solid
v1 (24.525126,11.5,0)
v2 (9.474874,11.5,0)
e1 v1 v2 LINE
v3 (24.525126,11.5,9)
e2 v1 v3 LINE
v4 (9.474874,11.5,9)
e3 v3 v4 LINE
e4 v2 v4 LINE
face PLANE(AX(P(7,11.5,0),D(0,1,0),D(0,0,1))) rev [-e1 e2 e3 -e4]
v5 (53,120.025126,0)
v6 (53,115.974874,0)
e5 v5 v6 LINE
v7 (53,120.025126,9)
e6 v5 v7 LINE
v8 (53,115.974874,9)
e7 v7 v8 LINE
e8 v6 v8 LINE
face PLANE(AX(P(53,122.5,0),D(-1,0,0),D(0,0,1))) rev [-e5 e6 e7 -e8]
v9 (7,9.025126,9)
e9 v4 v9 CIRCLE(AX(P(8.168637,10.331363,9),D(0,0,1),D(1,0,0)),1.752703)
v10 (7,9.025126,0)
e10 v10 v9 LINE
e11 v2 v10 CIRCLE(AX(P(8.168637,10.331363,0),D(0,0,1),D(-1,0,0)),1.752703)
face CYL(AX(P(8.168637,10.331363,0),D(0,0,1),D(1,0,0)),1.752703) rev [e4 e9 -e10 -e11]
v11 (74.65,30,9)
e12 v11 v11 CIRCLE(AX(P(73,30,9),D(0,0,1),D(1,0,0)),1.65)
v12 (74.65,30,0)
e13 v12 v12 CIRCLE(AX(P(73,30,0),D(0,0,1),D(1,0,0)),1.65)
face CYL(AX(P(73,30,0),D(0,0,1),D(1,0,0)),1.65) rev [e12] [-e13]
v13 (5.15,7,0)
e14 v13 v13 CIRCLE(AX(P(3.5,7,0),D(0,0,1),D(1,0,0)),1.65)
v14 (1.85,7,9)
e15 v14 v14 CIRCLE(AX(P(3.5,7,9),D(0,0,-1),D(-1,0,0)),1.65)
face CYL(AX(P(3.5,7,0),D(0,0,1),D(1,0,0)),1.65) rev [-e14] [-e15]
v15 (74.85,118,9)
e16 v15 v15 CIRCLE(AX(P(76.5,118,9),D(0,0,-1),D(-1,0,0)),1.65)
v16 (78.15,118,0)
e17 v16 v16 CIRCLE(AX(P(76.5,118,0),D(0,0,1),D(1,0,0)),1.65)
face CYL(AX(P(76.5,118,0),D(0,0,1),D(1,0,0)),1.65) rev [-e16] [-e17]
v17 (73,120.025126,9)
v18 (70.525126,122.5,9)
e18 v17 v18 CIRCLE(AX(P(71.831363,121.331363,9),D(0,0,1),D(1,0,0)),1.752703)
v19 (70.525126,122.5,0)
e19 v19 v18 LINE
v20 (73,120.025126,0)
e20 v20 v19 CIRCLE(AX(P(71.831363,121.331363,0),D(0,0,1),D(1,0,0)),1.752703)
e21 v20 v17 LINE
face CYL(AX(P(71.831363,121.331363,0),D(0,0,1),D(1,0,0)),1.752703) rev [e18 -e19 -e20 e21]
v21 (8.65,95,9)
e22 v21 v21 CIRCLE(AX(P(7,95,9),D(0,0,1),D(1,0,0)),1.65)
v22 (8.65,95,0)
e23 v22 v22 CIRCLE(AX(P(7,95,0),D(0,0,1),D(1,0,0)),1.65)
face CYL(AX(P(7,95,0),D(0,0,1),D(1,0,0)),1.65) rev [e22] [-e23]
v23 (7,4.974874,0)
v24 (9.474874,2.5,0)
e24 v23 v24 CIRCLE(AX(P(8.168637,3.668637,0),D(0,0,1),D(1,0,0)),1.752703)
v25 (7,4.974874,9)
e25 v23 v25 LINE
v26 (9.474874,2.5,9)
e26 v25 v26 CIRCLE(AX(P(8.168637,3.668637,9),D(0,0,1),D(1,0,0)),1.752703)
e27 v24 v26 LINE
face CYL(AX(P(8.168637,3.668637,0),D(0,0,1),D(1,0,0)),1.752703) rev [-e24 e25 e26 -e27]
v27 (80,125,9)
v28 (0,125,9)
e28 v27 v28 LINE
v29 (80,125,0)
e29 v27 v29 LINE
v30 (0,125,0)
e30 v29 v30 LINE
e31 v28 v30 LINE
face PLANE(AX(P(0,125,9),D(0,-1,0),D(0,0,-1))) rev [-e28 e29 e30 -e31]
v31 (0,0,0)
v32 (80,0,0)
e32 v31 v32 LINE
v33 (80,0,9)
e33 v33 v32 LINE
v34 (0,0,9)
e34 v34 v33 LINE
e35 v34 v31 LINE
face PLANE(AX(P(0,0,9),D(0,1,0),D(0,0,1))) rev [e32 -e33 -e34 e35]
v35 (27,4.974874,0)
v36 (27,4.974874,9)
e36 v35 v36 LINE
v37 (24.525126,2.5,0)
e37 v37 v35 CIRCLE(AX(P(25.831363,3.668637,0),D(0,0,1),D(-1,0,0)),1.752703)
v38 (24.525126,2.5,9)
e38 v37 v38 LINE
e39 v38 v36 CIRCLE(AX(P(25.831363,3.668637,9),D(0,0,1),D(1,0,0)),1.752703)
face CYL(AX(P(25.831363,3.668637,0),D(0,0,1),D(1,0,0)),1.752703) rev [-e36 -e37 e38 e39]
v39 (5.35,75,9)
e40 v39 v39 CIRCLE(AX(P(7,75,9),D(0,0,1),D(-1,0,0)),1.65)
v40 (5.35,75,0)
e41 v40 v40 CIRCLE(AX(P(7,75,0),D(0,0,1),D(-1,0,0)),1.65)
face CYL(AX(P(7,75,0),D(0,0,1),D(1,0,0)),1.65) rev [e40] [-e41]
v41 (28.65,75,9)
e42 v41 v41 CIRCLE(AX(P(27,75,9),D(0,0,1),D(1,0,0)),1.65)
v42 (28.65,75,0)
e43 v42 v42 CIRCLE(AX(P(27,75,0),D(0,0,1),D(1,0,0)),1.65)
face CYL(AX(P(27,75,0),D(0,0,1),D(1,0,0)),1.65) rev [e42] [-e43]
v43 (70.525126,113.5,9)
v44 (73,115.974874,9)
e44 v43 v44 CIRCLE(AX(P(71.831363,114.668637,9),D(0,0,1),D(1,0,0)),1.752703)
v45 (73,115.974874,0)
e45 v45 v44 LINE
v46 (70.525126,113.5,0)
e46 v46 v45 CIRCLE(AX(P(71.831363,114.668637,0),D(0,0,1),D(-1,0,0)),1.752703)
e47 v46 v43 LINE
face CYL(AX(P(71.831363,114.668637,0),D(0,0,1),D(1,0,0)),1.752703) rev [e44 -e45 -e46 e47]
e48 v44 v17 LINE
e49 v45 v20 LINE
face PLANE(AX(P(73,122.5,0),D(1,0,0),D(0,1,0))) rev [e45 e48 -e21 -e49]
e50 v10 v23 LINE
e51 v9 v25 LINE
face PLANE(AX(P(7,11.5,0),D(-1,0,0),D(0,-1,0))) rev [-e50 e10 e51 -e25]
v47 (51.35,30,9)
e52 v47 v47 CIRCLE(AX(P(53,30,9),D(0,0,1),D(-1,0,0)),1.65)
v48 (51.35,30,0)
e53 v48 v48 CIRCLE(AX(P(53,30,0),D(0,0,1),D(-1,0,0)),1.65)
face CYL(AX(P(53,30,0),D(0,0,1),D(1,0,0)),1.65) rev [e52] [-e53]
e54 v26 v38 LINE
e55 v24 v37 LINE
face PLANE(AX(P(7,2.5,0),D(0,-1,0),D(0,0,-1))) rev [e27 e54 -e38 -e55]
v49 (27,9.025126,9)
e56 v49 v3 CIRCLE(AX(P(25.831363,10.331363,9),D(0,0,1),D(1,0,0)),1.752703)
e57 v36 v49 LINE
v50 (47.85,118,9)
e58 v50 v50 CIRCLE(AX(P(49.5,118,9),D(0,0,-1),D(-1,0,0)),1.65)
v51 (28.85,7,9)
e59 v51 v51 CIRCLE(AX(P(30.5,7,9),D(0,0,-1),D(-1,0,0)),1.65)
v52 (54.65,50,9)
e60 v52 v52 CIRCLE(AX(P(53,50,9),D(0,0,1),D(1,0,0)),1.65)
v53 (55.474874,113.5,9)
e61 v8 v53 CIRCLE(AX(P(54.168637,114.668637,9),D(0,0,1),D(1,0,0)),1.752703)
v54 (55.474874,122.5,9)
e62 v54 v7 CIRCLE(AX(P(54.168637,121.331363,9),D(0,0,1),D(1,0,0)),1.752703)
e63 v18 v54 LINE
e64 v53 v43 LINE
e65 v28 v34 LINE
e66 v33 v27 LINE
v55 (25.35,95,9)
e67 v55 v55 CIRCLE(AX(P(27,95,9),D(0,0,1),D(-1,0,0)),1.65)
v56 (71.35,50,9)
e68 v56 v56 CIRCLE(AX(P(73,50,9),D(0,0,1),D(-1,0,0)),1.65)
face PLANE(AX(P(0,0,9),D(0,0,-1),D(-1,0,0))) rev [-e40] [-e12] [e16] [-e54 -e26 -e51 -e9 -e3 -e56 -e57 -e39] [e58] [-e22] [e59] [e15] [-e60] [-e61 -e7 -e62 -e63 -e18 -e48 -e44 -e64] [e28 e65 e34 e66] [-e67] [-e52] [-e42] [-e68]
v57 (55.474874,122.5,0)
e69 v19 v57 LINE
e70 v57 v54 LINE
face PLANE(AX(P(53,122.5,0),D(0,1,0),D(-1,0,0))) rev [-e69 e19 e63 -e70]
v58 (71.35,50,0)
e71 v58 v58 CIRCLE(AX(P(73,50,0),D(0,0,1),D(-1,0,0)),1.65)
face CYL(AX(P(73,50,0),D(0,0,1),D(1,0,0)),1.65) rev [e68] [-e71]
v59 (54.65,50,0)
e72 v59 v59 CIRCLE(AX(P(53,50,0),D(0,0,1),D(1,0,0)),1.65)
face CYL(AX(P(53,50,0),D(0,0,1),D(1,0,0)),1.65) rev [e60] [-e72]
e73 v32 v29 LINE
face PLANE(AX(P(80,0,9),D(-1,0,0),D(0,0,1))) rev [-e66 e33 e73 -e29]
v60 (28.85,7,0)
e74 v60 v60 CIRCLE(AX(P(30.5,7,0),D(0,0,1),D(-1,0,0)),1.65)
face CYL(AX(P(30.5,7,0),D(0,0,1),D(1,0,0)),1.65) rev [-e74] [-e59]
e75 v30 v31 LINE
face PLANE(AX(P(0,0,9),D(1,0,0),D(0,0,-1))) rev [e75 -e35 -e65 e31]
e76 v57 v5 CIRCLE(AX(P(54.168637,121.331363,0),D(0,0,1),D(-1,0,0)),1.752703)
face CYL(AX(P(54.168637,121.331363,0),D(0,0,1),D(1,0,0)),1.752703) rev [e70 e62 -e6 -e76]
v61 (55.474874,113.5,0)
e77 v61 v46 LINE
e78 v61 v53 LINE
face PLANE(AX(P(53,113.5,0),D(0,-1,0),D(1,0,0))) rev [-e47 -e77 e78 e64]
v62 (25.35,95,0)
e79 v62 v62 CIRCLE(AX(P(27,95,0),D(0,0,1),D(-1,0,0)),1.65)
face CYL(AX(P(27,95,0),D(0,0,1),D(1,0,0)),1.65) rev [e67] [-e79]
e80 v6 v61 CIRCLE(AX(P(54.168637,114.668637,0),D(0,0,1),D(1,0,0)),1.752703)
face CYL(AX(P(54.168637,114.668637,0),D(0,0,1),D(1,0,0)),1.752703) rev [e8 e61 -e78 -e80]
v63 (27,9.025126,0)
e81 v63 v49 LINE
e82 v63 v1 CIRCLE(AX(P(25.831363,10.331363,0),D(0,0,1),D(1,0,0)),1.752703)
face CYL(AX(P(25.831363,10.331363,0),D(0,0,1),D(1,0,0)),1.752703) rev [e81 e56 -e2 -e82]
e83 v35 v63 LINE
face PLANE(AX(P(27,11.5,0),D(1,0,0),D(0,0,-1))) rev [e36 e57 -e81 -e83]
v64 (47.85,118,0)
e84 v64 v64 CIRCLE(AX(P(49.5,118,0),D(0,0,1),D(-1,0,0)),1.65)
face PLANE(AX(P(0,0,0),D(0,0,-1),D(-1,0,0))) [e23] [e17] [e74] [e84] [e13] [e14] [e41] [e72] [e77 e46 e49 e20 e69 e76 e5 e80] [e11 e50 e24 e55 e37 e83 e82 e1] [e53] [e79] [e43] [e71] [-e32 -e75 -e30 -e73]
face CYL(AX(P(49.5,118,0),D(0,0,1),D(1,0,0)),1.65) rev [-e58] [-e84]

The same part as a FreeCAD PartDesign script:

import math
import FreeCAD as App
import Part
import Sketcher
from FreeCAD import Vector
Q = App.Units.Quantity

doc = App.newDocument("Part")
body = doc.addObject("PartDesign::Body", "Body")

# Sketch on XY plane
sketch1 = doc.addObject("Sketcher::SketchObject", "Sketch")
body.addObject(sketch1)
sketch1.AttachmentSupport = (doc.XY_Plane, [""])
sketch1.MapMode = "FlatFace"
sketch1.addGeometry(Part.LineSegment(Vector(0, 125, 0), Vector(0, 0, 0)), False)
sketch1.addGeometry(Part.LineSegment(Vector(0, 0, 0), Vector(80, 0, 0)), False)
sketch1.addGeometry(Part.LineSegment(Vector(80, 0, 0), Vector(80, 125, 0)), False)
sketch1.addGeometry(Part.LineSegment(Vector(80, 125, 0), Vector(0, 125, 0)), False)
sketch1.addConstraint(Sketcher.Constraint("Coincident", 0, 2, 1, 1))
sketch1.addConstraint(Sketcher.Constraint("Coincident", 1, 2, 2, 1))
sketch1.addConstraint(Sketcher.Constraint("Coincident", 2, 2, 3, 1))
sketch1.addConstraint(Sketcher.Constraint("Coincident", 3, 2, 0, 1))
sketch1.addConstraint(Sketcher.Constraint("Vertical", 0))
sketch1.addConstraint(Sketcher.Constraint("Horizontal", 1))
sketch1.addConstraint(Sketcher.Constraint("Vertical", 2))
sketch1.addConstraint(Sketcher.Constraint("Horizontal", 3))
sketch1.addConstraint(Sketcher.Constraint("Coincident", 0, 2, -1, 1))
sketch1.addConstraint(Sketcher.Constraint("DistanceX", 1, 1, 1, 2, Q("80 mm")))
sketch1.addConstraint(Sketcher.Constraint("DistanceY", 0, 2, 0, 1, Q("125 mm")))
pad1 = doc.addObject("PartDesign::Pad", "Pad")
body.addObject(pad1)
pad1.Profile = sketch1
pad1.Length = 9

# Sketch on XY plane
sketch2 = doc.addObject("Sketcher::SketchObject", "Sketch001")
body.addObject(sketch2)
sketch2.AttachmentSupport = (doc.XY_Plane, [""])
sketch2.MapMode = "FlatFace"
sketch2.AttachmentOffset = App.Placement(Vector(0, 0, 9), App.Rotation())
sketch2.addGeometry(Part.LineSegment(Vector(7, 11.5, 0), Vector(7, 2.5, 0)), False)
sketch2.addGeometry(Part.LineSegment(Vector(7, 2.5, 0), Vector(27, 2.5, 0)), False)
sketch2.addGeometry(Part.LineSegment(Vector(27, 2.5, 0), Vector(27, 11.5, 0)), False)
sketch2.addGeometry(Part.LineSegment(Vector(27, 11.5, 0), Vector(7, 11.5, 0)), False)
sketch2.addGeometry(Part.LineSegment(Vector(53, 122.5, 0), Vector(53, 113.5, 0)), False)
sketch2.addGeometry(Part.LineSegment(Vector(53, 113.5, 0), Vector(73, 113.5, 0)), False)
sketch2.addGeometry(Part.LineSegment(Vector(73, 113.5, 0), Vector(73, 122.5, 0)), False)
sketch2.addGeometry(Part.LineSegment(Vector(73, 122.5, 0), Vector(53, 122.5, 0)), False)
sketch2.addConstraint(Sketcher.Constraint("Coincident", 0, 2, 1, 1))
sketch2.addConstraint(Sketcher.Constraint("Coincident", 1, 2, 2, 1))
sketch2.addConstraint(Sketcher.Constraint("Coincident", 2, 2, 3, 1))
sketch2.addConstraint(Sketcher.Constraint("Coincident", 3, 2, 0, 1))
sketch2.addConstraint(Sketcher.Constraint("Coincident", 4, 2, 5, 1))
sketch2.addConstraint(Sketcher.Constraint("Coincident", 5, 2, 6, 1))
sketch2.addConstraint(Sketcher.Constraint("Coincident", 6, 2, 7, 1))
sketch2.addConstraint(Sketcher.Constraint("Coincident", 7, 2, 4, 1))
sketch2.addConstraint(Sketcher.Constraint("Vertical", 0))
sketch2.addConstraint(Sketcher.Constraint("Horizontal", 1))
sketch2.addConstraint(Sketcher.Constraint("Vertical", 2))
sketch2.addConstraint(Sketcher.Constraint("Horizontal", 3))
sketch2.addConstraint(Sketcher.Constraint("Vertical", 4))
sketch2.addConstraint(Sketcher.Constraint("Horizontal", 5))
sketch2.addConstraint(Sketcher.Constraint("Vertical", 6))
sketch2.addConstraint(Sketcher.Constraint("Horizontal", 7))
sketch2.addConstraint(Sketcher.Constraint("Equal", 3, 5))
sketch2.addConstraint(Sketcher.Constraint("Equal", 2, 4))
sketch2.addConstraint(Sketcher.Constraint("DistanceX", 1, 1, 1, 2, Q("20 mm")))
sketch2.addConstraint(Sketcher.Constraint("DistanceY", 0, 2, 0, 1, Q("9 mm")))
sketch2.addConstraint(Sketcher.Constraint("DistanceX", -1, 1, 0, 2, Q("7 mm")))
sketch2.addConstraint(Sketcher.Constraint("DistanceX", -1, 1, 4, 2, Q("53 mm")))
sketch2.addConstraint(Sketcher.Constraint("DistanceY", 2, 2, 4, 2, Q("102 mm")))
sketch2.addConstraint(Sketcher.Constraint("DistanceY", -1, 1, 0, 2, Q("2.5 mm")))
pocket1 = doc.addObject("PartDesign::Pocket", "Pocket")
body.addObject(pocket1)
pocket1.Profile = sketch2
pocket1.Length = 9

# Sketch on XY plane
sketch3 = doc.addObject("Sketcher::SketchObject", "Sketch002")
body.addObject(sketch3)
sketch3.AttachmentSupport = (doc.XY_Plane, [""])
sketch3.MapMode = "FlatFace"
sketch3.AttachmentOffset = App.Placement(Vector(0, 0, 9), App.Rotation())
sketch3.addGeometry(Part.Circle(Vector(3.5, 7, 0), Vector(0, 0, 1), 1.65), False)
sketch3.addGeometry(Part.Circle(Vector(30.5, 7, 0), Vector(0, 0, 1), 1.65), False)
sketch3.addGeometry(Part.Circle(Vector(49.5, 118, 0), Vector(0, 0, 1), 1.65), False)
sketch3.addGeometry(Part.Circle(Vector(76.5, 118, 0), Vector(0, 0, 1), 1.65), False)
sketch3.addGeometry(Part.LineSegment(Vector(7, 9.025126, 0), Vector(9.474874, 11.5, 0)), False)
sketch3.addGeometry(Part.ArcOfCircle(Part.Circle(Vector(8.168637, 10.331363, 0), Vector(0, 0, 1), 1.752703), math.radians(41.817719), math.radians(228.182281)), False)
sketch3.addGeometry(Part.LineSegment(Vector(24.525126, 11.5, 0), Vector(27, 9.025126, 0)), False)
sketch3.addGeometry(Part.ArcOfCircle(Part.Circle(Vector(25.831363, 10.331363, 0), Vector(0, 0, 1), 1.752703), math.radians(-48.182281), math.radians(138.182281)), False)
sketch3.addGeometry(Part.LineSegment(Vector(27, 4.974874, 0), Vector(24.525126, 2.5, 0)), False)
sketch3.addGeometry(Part.ArcOfCircle(Part.Circle(Vector(25.831363, 3.668637, 0), Vector(0, 0, 1), 1.752703), math.radians(-138.182281), math.radians(48.182281)), False)
sketch3.addGeometry(Part.LineSegment(Vector(9.474874, 2.5, 0), Vector(7, 4.974874, 0)), False)
sketch3.addGeometry(Part.ArcOfCircle(Part.Circle(Vector(8.168637, 3.668637, 0), Vector(0, 0, 1), 1.752703), math.radians(131.817719), math.radians(318.182281)), False)
sketch3.addGeometry(Part.LineSegment(Vector(73, 115.974874, 0), Vector(70.525126, 113.5, 0)), False)
sketch3.addGeometry(Part.ArcOfCircle(Part.Circle(Vector(71.831363, 114.668637, 0), Vector(0, 0, 1), 1.752703), math.radians(-138.182281), math.radians(48.182281)), False)
sketch3.addGeometry(Part.LineSegment(Vector(55.474874, 113.5, 0), Vector(53, 115.974874, 0)), False)
sketch3.addGeometry(Part.ArcOfCircle(Part.Circle(Vector(54.168637, 114.668637, 0), Vector(0, 0, 1), 1.752703), math.radians(131.817719), math.radians(318.182281)), False)
sketch3.addGeometry(Part.LineSegment(Vector(53, 120.025126, 0), Vector(55.474874, 122.5, 0)), False)
sketch3.addGeometry(Part.ArcOfCircle(Part.Circle(Vector(54.168637, 121.331363, 0), Vector(0, 0, 1), 1.752703), math.radians(41.817719), math.radians(228.182281)), False)
sketch3.addGeometry(Part.LineSegment(Vector(70.525126, 122.5, 0), Vector(73, 120.025126, 0)), False)
sketch3.addGeometry(Part.ArcOfCircle(Part.Circle(Vector(71.831363, 121.331363, 0), Vector(0, 0, 1), 1.752703), math.radians(-48.182281), math.radians(138.182281)), False)
sketch3.addConstraint(Sketcher.Constraint("Coincident", 4, 1, 5, 2))
sketch3.addConstraint(Sketcher.Constraint("Coincident", 5, 1, 4, 2))
sketch3.addConstraint(Sketcher.Constraint("Coincident", 6, 1, 7, 2))
sketch3.addConstraint(Sketcher.Constraint("Coincident", 7, 1, 6, 2))
sketch3.addConstraint(Sketcher.Constraint("Coincident", 8, 1, 9, 2))
sketch3.addConstraint(Sketcher.Constraint("Coincident", 9, 1, 8, 2))
sketch3.addConstraint(Sketcher.Constraint("Coincident", 10, 1, 11, 2))
sketch3.addConstraint(Sketcher.Constraint("Coincident", 11, 1, 10, 2))
sketch3.addConstraint(Sketcher.Constraint("Coincident", 12, 1, 13, 2))
sketch3.addConstraint(Sketcher.Constraint("Coincident", 13, 1, 12, 2))
sketch3.addConstraint(Sketcher.Constraint("Coincident", 14, 1, 15, 2))
sketch3.addConstraint(Sketcher.Constraint("Coincident", 15, 1, 14, 2))
sketch3.addConstraint(Sketcher.Constraint("Coincident", 16, 1, 17, 2))
sketch3.addConstraint(Sketcher.Constraint("Coincident", 17, 1, 16, 2))
sketch3.addConstraint(Sketcher.Constraint("Coincident", 18, 1, 19, 2))
sketch3.addConstraint(Sketcher.Constraint("Coincident", 19, 1, 18, 2))
sketch3.addConstraint(Sketcher.Constraint("Equal", 0, 1))
sketch3.addConstraint(Sketcher.Constraint("Equal", 1, 2))
sketch3.addConstraint(Sketcher.Constraint("Equal", 2, 3))
sketch3.addConstraint(Sketcher.Constraint("Equal", 5, 7))
sketch3.addConstraint(Sketcher.Constraint("Equal", 7, 9))
sketch3.addConstraint(Sketcher.Constraint("Equal", 9, 11))
sketch3.addConstraint(Sketcher.Constraint("Equal", 11, 13))
sketch3.addConstraint(Sketcher.Constraint("Equal", 13, 15))
sketch3.addConstraint(Sketcher.Constraint("Equal", 15, 17))
sketch3.addConstraint(Sketcher.Constraint("Equal", 17, 19))
sketch3.addConstraint(Sketcher.Constraint("Perpendicular", 4, 6))
sketch3.addConstraint(Sketcher.Constraint("Perpendicular", 6, 8))
sketch3.addConstraint(Sketcher.Constraint("Perpendicular", 8, 10))
sketch3.addConstraint(Sketcher.Constraint("Perpendicular", 10, 12))
sketch3.addConstraint(Sketcher.Constraint("Perpendicular", 12, 14))
sketch3.addConstraint(Sketcher.Constraint("Perpendicular", 14, 16))
sketch3.addConstraint(Sketcher.Constraint("Perpendicular", 16, 18))
sketch3.addConstraint(Sketcher.Constraint("Horizontal", 0, 3, 1, 3))
sketch3.addConstraint(Sketcher.Constraint("Horizontal", 2, 3, 3, 3))
sketch3.addConstraint(Sketcher.Constraint("Horizontal", 5, 3, 7, 3))
sketch3.addConstraint(Sketcher.Constraint("Horizontal", 9, 3, 11, 3))
sketch3.addConstraint(Sketcher.Constraint("Horizontal", 13, 3, 15, 3))
sketch3.addConstraint(Sketcher.Constraint("Horizontal", 17, 3, 19, 3))
sketch3.addConstraint(Sketcher.Constraint("Horizontal", 5, 1, 6, 1))
sketch3.addConstraint(Sketcher.Constraint("Horizontal", 4, 1, 7, 1))
sketch3.addConstraint(Sketcher.Constraint("Horizontal", 9, 1, 10, 1))
sketch3.addConstraint(Sketcher.Constraint("Horizontal", 13, 1, 14, 1))
sketch3.addConstraint(Sketcher.Constraint("Horizontal", 17, 1, 18, 1))
sketch3.addConstraint(Sketcher.Constraint("Vertical", 7, 3, 9, 3))
sketch3.addConstraint(Sketcher.Constraint("Vertical", 5, 3, 11, 3))
sketch3.addConstraint(Sketcher.Constraint("Vertical", 15, 3, 17, 3))
sketch3.addConstraint(Sketcher.Constraint("Vertical", 13, 3, 19, 3))
sketch3.addConstraint(Sketcher.Constraint("Vertical", 7, 1, 8, 1))
sketch3.addConstraint(Sketcher.Constraint("Vertical", 15, 1, 16, 1))
sketch3.addConstraint(Sketcher.Constraint("Equal", 10, 12))
sketch3.addConstraint(Sketcher.Constraint("Diameter", 0, Q("3.3 mm")))
sketch3.addConstraint(Sketcher.Constraint("DistanceY", -1, 1, 0, 3, Q("7 mm")))
sketch3.addConstraint(Sketcher.Constraint("DistanceY", -1, 1, 2, 3, Q("118 mm")))
sketch3.addConstraint(Sketcher.Constraint("DistanceX", -1, 1, 4, 1, Q("7 mm")))
sketch3.addConstraint(Sketcher.Constraint("DistanceX", -1, 1, 7, 1, Q("27 mm")))
sketch3.addConstraint(Sketcher.Constraint("DistanceX", -1, 1, 12, 1, Q("73 mm")))
sketch3.addConstraint(Sketcher.Constraint("DistanceX", -1, 1, 15, 1, Q("53 mm")))
sketch3.addConstraint(Sketcher.Constraint("DistanceX", 0, 3, 1, 3, Q("27 mm")))
sketch3.addConstraint(Sketcher.Constraint("DistanceX", 1, 3, 2, 3, Q("19 mm")))
sketch3.addConstraint(Sketcher.Constraint("DistanceX", 2, 3, 3, 3, Q("27 mm")))
sketch3.addConstraint(Sketcher.Constraint("DistanceY", 9, 3, 13, 3, Q("111 mm")))
sketch3.addConstraint(Sketcher.Constraint("DistanceY", 7, 3, 17, 3, Q("111 mm")))
sketch3.addConstraint(Sketcher.Constraint("DistanceY", 10, 1, 5, 1, Q("9 mm")))
sketch3.addConstraint(Sketcher.Constraint("Distance", 4, Q("3.5 mm")))
sketch3.addConstraint(Sketcher.Constraint("DistanceX", -1, 1, 0, 3, Q("3.5 mm")))
sketch3.addConstraint(Sketcher.Constraint("DistanceY", -1, 1, 5, 1, Q("11.5 mm")))
sketch3.addConstraint(Sketcher.Constraint("Radius", 5, Q("1.752703 mm")))
pocket2 = doc.addObject("PartDesign::Pocket", "Pocket001")
body.addObject(pocket2)
pocket2.Profile = sketch3
pocket2.Type = "ThroughAll"
pocket2.Midplane = True

# Sketch on XY plane
sketch4 = doc.addObject("Sketcher::SketchObject", "Sketch003")
body.addObject(sketch4)
sketch4.AttachmentSupport = (doc.XY_Plane, [""])
sketch4.MapMode = "FlatFace"
sketch4.AttachmentOffset = App.Placement(Vector(0, 0, 9), App.Rotation())
sketch4.addGeometry(Part.Circle(Vector(7, 95, 0), Vector(0, 0, 1), 1.65), False)
sketch4.addGeometry(Part.Circle(Vector(27, 95, 0), Vector(0, 0, 1), 1.65), False)
sketch4.addGeometry(Part.Circle(Vector(27, 75, 0), Vector(0, 0, 1), 1.65), False)
sketch4.addGeometry(Part.Circle(Vector(7, 75, 0), Vector(0, 0, 1), 1.65), False)
sketch4.addGeometry(Part.Circle(Vector(73, 30, 0), Vector(0, 0, 1), 1.65), False)
sketch4.addGeometry(Part.Circle(Vector(53, 30, 0), Vector(0, 0, 1), 1.65), False)
sketch4.addGeometry(Part.Circle(Vector(53, 50, 0), Vector(0, 0, 1), 1.65), False)
sketch4.addGeometry(Part.Circle(Vector(73, 50, 0), Vector(0, 0, 1), 1.65), False)
sketch4.addConstraint(Sketcher.Constraint("Equal", 0, 1))
sketch4.addConstraint(Sketcher.Constraint("Equal", 1, 2))
sketch4.addConstraint(Sketcher.Constraint("Equal", 2, 3))
sketch4.addConstraint(Sketcher.Constraint("Equal", 3, 4))
sketch4.addConstraint(Sketcher.Constraint("Equal", 4, 5))
sketch4.addConstraint(Sketcher.Constraint("Equal", 5, 6))
sketch4.addConstraint(Sketcher.Constraint("Equal", 6, 7))
sketch4.addConstraint(Sketcher.Constraint("Horizontal", 0, 3, 1, 3))
sketch4.addConstraint(Sketcher.Constraint("Horizontal", 2, 3, 3, 3))
sketch4.addConstraint(Sketcher.Constraint("Horizontal", 4, 3, 5, 3))
sketch4.addConstraint(Sketcher.Constraint("Horizontal", 6, 3, 7, 3))
sketch4.addConstraint(Sketcher.Constraint("Vertical", 1, 3, 2, 3))
sketch4.addConstraint(Sketcher.Constraint("Vertical", 0, 3, 3, 3))
sketch4.addConstraint(Sketcher.Constraint("Vertical", 5, 3, 6, 3))
sketch4.addConstraint(Sketcher.Constraint("Vertical", 4, 3, 7, 3))
sketch4.addConstraint(Sketcher.Constraint("Diameter", 0, Q("3.3 mm")))
sketch4.addConstraint(Sketcher.Constraint("DistanceX", -1, 1, 0, 3, Q("7 mm")))
sketch4.addConstraint(Sketcher.Constraint("DistanceY", -1, 1, 0, 3, Q("95 mm")))
sketch4.addConstraint(Sketcher.Constraint("DistanceX", -1, 1, 1, 3, Q("27 mm")))
sketch4.addConstraint(Sketcher.Constraint("DistanceY", -1, 1, 2, 3, Q("75 mm")))
sketch4.addConstraint(Sketcher.Constraint("DistanceX", -1, 1, 4, 3, Q("73 mm")))
sketch4.addConstraint(Sketcher.Constraint("DistanceY", -1, 1, 4, 3, Q("30 mm")))
sketch4.addConstraint(Sketcher.Constraint("DistanceX", -1, 1, 5, 3, Q("53 mm")))
sketch4.addConstraint(Sketcher.Constraint("DistanceY", -1, 1, 6, 3, Q("50 mm")))
pocket3 = doc.addObject("PartDesign::Pocket", "Pocket002")
body.addObject(pocket3)
pocket3.Profile = sketch4
pocket3.Length = 9

doc.recompute()
